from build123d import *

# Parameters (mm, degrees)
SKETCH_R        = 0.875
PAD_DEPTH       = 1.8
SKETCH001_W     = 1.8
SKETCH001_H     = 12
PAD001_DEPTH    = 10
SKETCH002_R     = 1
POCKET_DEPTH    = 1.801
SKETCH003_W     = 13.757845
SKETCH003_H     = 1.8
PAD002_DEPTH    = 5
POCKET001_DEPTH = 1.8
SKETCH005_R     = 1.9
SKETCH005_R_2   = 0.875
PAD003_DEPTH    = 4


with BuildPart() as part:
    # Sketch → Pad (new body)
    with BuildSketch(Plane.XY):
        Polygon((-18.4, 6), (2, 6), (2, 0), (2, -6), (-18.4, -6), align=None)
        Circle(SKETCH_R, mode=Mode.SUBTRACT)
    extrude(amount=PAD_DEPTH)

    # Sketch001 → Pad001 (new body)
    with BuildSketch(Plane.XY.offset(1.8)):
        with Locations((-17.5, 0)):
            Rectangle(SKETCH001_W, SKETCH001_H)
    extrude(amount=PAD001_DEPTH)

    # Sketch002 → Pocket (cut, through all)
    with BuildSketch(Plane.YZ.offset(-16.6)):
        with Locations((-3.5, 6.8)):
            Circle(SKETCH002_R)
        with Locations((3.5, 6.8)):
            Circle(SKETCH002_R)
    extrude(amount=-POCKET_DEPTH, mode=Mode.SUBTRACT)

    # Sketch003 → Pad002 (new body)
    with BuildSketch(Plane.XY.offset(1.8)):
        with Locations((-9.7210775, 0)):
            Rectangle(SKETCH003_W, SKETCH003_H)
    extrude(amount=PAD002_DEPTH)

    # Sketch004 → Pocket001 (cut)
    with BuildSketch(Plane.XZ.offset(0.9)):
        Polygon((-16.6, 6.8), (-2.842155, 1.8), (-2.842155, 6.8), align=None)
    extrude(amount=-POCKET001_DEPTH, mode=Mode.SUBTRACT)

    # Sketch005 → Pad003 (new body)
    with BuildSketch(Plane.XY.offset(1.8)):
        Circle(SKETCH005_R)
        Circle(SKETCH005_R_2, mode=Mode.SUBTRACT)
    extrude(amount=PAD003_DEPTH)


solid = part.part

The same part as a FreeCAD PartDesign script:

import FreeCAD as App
import Part
import Sketcher
from FreeCAD import Vector
Q = App.Units.Quantity

doc = App.newDocument("Part")
body = doc.addObject("PartDesign::Body", "Body")

# Sketch on XY plane
sketch1 = doc.addObject("Sketcher::SketchObject", "Sketch")
body.addObject(sketch1)
sketch1.AttachmentSupport = (doc.XY_Plane, [""])
sketch1.MapMode = "FlatFace"
sketch1.addGeometry([
    Part.LineSegment(Vector(2, 6, 0), Vector(-18.4, 6, 0)),  # 0
    Part.LineSegment(Vector(-18.4, 6, 0), Vector(-18.4, -6, 0)),  # 1
    Part.LineSegment(Vector(-18.4, -6, 0), Vector(2, -6, 0)),  # 2
    Part.LineSegment(Vector(2, -6, 0), Vector(2, 6, 0)),  # 3
    Part.Circle(Vector(0, 0, 0), Vector(0, 0, 1), 0.9),  # 4
], False)
sketch1.addConstraint([
    Sketcher.Constraint("Coincident", 0, 2, 1, 1),
    Sketcher.Constraint("Coincident", 1, 2, 2, 1),
    Sketcher.Constraint("Coincident", 2, 2, 3, 1),
    Sketcher.Constraint("Coincident", 3, 2, 0, 1),
    Sketcher.Constraint("Horizontal", 0),
    Sketcher.Constraint("Vertical", 1),
    Sketcher.Constraint("Horizontal", 2),
    Sketcher.Constraint("Vertical", 3),
    Sketcher.Constraint("Coincident", 4, 3, -1, 1),
    Sketcher.Constraint("Diameter", 4, Q("1.75 mm")),
    Sketcher.Constraint("DistanceY", 1, 2, 1, 1, Q("12 mm")),
    Sketcher.Constraint("DistanceX", 0, 2, 0, 1, Q("20.4 mm")),
    Sketcher.Constraint("DistanceY", -1, 1, 0, 2, Q("6 mm")),
    Sketcher.Constraint("DistanceX", -1, 1, 2, 2, Q("2 mm")),
])
pad1 = doc.addObject("PartDesign::Pad", "Pad")
body.addObject(pad1)
pad1.Profile = sketch1
pad1.Length = 1.8

# Sketch on XY plane
sketch2 = doc.addObject("Sketcher::SketchObject", "Sketch001")
body.addObject(sketch2)
sketch2.AttachmentSupport = (doc.XY_Plane, [""])
sketch2.MapMode = "FlatFace"
sketch2.AttachmentOffset = App.Placement(Vector(0, 0, 1.8), App.Rotation())
sketch2.addGeometry([
    Part.LineSegment(Vector(-18.4, 6, 0), Vector(-18.4, -6, 0)),
    Part.LineSegment(Vector(-18.4, -6, 0), Vector(-16.6, -6, 0)),
    Part.LineSegment(Vector(-16.6, -6, 0), Vector(-16.6, 6, 0)),
    Part.LineSegment(Vector(-16.6, 6, 0), Vector(-18.4, 6, 0)),
], False)
sketch2.addConstraint([
    Sketcher.Constraint("Coincident", 0, 2, 1, 1),
    Sketcher.Constraint("Coincident", 1, 2, 2, 1),
    Sketcher.Constraint("Coincident", 2, 2, 3, 1),
    Sketcher.Constraint("Coincident", 3, 2, 0, 1),
    Sketcher.Constraint("Vertical", 0),
    Sketcher.Constraint("Horizontal", 1),
    Sketcher.Constraint("Vertical", 2),
    Sketcher.Constraint("Horizontal", 3),
    Sketcher.Constraint("DistanceY", 0, 2, 0, 1, Q("12 mm")),
    Sketcher.Constraint("DistanceX", 1, 1, 1, 2, Q("1.8 mm")),
    Sketcher.Constraint("DistanceY", 0, 2, -1, 1, Q("6 mm")),
    Sketcher.Constraint("DistanceX", 0, 2, -1, 1, Q("18.4 mm")),
])
pad2 = doc.addObject("PartDesign::Pad", "Pad001")
body.addObject(pad2)
pad2.Profile = sketch2
pad2.Length = 10

# Sketch on YZ plane
sketch3 = doc.addObject("Sketcher::SketchObject", "Sketch002")
body.addObject(sketch3)
sketch3.AttachmentSupport = (doc.YZ_Plane, [""])
sketch3.MapMode = "FlatFace"
sketch3.AttachmentOffset = App.Placement(Vector(0, 0, -16.6), App.Rotation())
sketch3.addGeometry([
    Part.Circle(Vector(-3.5, 6.8, 0), Vector(0, 0, 1), 1),
    Part.Circle(Vector(3.5, 6.8, 0), Vector(0, 0, 1), 1),
], False)
sketch3.addConstraint([
    Sketcher.Constraint("Equal", 0, 1),
    Sketcher.Constraint("Symmetric", 0, 3, 1, 3, -2),
    Sketcher.Constraint("Diameter", 0, Q("2 mm")),
    Sketcher.Constraint("DistanceX", 0, 3, 1, 3, Q("7 mm")),
    Sketcher.Constraint("DistanceY", -1, 1, 0, 3, Q("6.8 mm")),
])
pocket1 = doc.addObject("PartDesign::Pocket", "Pocket")
body.addObject(pocket1)
pocket1.Profile = sketch3
pocket1.Type = "ThroughAll"

# Sketch on XY plane
sketch4 = doc.addObject("Sketcher::SketchObject", "Sketch003")
body.addObject(sketch4)
sketch4.AttachmentSupport = (doc.XY_Plane, [""])
sketch4.MapMode = "FlatFace"
sketch4.AttachmentOffset = App.Placement(Vector(0, 0, 1.8), App.Rotation())
sketch4.addGeometry([
    Part.LineSegment(Vector(-16.6, 0.9, 0), Vector(-16.6, -0.9, 0)),
    Part.LineSegment(Vector(-16.6, -0.9, 0), Vector(-2.8, -0.9, 0)),
    Part.LineSegment(Vector(-2.8, -0.9, 0), Vector(-2.8, 0.9, 0)),
    Part.LineSegment(Vector(-2.8, 0.9, 0), Vector(-16.6, 0.9, 0)),
], False)
sketch4.addConstraint([
    Sketcher.Constraint("Coincident", 0, 2, 1, 1),
    Sketcher.Constraint("Coincident", 1, 2, 2, 1),
    Sketcher.Constraint("Coincident", 2, 2, 3, 1),
    Sketcher.Constraint("Coincident", 3, 2, 0, 1),
    Sketcher.Constraint("Vertical", 0),
    Sketcher.Constraint("Horizontal", 1),
    Sketcher.Constraint("Vertical", 2),
    Sketcher.Constraint("Horizontal", 3),
    Sketcher.Constraint("DistanceY", 0, 2, 0, 1, Q("1.8 mm")),
    Sketcher.Constraint("DistanceX", 0, 2, -1, 1, Q("16.6 mm")),
    Sketcher.Constraint("DistanceY", 0, 2, -1, 1, Q("0.9 mm")),
    Sketcher.Constraint("DistanceX", 1, 1, 1, 2, Q("13.757845 mm")),
])
pad3 = doc.addObject("PartDesign::Pad", "Pad002")
body.addObject(pad3)
pad3.Profile = sketch4
pad3.Length = 5

# Sketch on XZ plane
sketch5 = doc.addObject("Sketcher::SketchObject", "Sketch004")
body.addObject(sketch5)
sketch5.AttachmentSupport = (doc.XZ_Plane, [""])
sketch5.MapMode = "FlatFace"
sketch5.AttachmentOffset = App.Placement(Vector(0, 0, 0.9), App.Rotation())
sketch5.addGeometry([
    Part.LineSegment(Vector(-17, 7, 0), Vector(-3, 2, 0)),
    Part.LineSegment(Vector(-3, 2, 0), Vector(-3, 7, 0)),
    Part.LineSegment(Vector(-3, 7, 0), Vector(-17, 7, 0)),
], False)
sketch5.addConstraint([
    Sketcher.Constraint("Coincident", 0, 2, 1, 1),
    Sketcher.Constraint("Coincident", 1, 2, 2, 1),
    Sketcher.Constraint("Coincident", 2, 2, 0, 1),
    Sketcher.Constraint("Vertical", 1),
    Sketcher.Constraint("Horizontal", 2),
    Sketcher.Constraint("DistanceY", 1, 1, 1, 2, Q("5 mm")),
    Sketcher.Constraint("DistanceY", -1, 1, 0, 2, Q("1.8 mm")),
    Sketcher.Constraint("DistanceX", 2, 2, -1, 1, Q("16.6 mm")),
    Sketcher.Constraint("DistanceX", 2, 2, 2, 1, Q("13.757845 mm")),
])
pocket2 = doc.addObject("PartDesign::Pocket", "Pocket001")
body.addObject(pocket2)
pocket2.Profile = sketch5
pocket2.Length = 1.8

# Sketch on XY plane
sketch6 = doc.addObject("Sketcher::SketchObject", "Sketch005")
body.addObject(sketch6)
sketch6.AttachmentSupport = (doc.XY_Plane, [""])
sketch6.MapMode = "FlatFace"
sketch6.AttachmentOffset = App.Placement(Vector(0, 0, 1.8), App.Rotation())
sketch6.addGeometry([
    Part.Circle(Vector(0, 0, 0), Vector(0, 0, 1), 1.9),
    Part.Circle(Vector(0, 0, 0), Vector(0, 0, 1), 0.9),
], False)
sketch6.addConstraint([
    Sketcher.Constraint("Coincident", 0, 3, -1, 1),
    Sketcher.Constraint("Coincident", 1, 3, -1, 1),
    Sketcher.Constraint("Diameter", 0, Q("3.8 mm")),
    Sketcher.Constraint("Diameter", 1, Q("1.75 mm")),
])
pad4 = doc.addObject("PartDesign::Pad", "Pad003")
body.addObject(pad4)
pad4.Profile = sketch6
pad4.Length = 4

doc.recompute()
